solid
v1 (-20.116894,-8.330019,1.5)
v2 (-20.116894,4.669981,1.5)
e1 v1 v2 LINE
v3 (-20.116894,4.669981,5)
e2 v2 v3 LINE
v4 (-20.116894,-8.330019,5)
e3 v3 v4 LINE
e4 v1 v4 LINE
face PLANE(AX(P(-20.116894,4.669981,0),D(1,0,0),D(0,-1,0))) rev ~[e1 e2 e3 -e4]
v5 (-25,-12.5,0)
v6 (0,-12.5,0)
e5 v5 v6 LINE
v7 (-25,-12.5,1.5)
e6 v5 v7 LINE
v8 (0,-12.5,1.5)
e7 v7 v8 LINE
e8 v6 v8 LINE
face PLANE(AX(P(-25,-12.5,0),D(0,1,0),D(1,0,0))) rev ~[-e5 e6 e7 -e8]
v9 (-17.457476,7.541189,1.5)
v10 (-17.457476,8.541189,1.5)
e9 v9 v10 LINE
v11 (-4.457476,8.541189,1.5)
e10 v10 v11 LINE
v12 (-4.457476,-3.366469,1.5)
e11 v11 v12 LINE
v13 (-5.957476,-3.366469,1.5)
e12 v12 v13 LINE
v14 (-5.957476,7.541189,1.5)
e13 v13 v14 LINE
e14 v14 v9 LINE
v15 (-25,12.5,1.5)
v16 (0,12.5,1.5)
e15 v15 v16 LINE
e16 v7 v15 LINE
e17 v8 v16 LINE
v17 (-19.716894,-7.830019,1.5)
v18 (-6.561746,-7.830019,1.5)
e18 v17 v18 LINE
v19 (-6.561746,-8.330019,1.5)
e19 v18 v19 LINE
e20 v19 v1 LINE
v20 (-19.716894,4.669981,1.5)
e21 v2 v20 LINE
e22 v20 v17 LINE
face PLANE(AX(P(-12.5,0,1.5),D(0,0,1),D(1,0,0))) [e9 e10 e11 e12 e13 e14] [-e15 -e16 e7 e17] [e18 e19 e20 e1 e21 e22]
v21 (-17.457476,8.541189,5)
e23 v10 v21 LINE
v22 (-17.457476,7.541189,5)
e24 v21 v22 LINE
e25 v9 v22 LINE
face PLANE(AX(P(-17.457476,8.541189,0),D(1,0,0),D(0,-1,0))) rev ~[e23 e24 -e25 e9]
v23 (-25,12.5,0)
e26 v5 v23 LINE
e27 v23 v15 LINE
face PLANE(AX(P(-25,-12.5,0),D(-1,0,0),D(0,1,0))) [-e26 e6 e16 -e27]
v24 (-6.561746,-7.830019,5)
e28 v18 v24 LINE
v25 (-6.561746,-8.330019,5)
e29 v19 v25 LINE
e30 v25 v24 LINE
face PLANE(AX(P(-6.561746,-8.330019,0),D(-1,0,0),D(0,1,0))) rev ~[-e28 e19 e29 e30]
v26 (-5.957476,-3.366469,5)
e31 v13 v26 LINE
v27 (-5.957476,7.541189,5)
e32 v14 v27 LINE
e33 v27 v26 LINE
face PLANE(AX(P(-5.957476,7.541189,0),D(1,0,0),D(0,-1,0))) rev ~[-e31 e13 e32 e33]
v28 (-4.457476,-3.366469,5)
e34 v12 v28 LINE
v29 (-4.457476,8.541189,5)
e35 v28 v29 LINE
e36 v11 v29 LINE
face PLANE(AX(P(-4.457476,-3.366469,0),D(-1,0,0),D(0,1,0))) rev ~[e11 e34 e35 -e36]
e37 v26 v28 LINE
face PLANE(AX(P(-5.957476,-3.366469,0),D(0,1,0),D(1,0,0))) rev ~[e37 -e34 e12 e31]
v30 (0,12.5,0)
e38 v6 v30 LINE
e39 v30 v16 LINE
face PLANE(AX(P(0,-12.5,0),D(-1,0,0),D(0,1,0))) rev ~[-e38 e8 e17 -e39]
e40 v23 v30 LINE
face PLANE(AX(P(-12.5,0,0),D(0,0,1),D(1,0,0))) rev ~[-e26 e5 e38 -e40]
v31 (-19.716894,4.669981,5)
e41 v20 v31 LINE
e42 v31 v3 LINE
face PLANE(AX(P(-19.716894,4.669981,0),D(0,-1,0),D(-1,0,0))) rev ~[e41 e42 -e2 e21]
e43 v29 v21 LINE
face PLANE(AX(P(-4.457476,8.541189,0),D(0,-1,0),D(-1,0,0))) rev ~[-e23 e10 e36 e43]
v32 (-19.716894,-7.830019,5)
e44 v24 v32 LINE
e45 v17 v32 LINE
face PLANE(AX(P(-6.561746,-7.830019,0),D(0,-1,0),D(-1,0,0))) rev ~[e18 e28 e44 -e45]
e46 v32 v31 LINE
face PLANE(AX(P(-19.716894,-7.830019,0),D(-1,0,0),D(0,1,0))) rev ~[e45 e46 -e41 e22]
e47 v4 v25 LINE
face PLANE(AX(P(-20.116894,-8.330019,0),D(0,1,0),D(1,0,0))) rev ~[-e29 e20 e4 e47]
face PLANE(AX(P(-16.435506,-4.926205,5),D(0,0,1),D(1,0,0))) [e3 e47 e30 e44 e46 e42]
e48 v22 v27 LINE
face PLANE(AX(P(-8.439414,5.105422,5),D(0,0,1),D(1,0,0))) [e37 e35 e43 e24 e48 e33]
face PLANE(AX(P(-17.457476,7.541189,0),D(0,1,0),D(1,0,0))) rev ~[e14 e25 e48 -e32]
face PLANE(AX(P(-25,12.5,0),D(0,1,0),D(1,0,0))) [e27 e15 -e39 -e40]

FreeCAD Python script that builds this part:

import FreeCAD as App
import Part
import Sketcher
Q = App.Units.Quantity


def add_polygon(sketch, points):
    """Adds a closed chain of lines whose ends are joined by coincident constraints."""
    first, n = sketch.GeometryCount, len(points)
    for a, b in zip(points, points[1:] + points[:1]):
        sketch.addGeometry(Part.LineSegment(App.Vector(*a, 0), App.Vector(*b, 0)), False)
    for i in range(n):
        sketch.addConstraint(Sketcher.Constraint("Coincident", first + i, 2, first + (i + 1) % n, 1))

doc = App.newDocument("Part")
body = doc.addObject("PartDesign::Body", "Body")

# Sketch on XY plane
sketch1 = body.newObject("Sketcher::SketchObject", "Sketch")
sketch1.AttachmentSupport = (doc.getObject("XY_Plane"), [""])
sketch1.MapMode = "FlatFace"
add_polygon(sketch1, [(-4.457476, 8.541189), (-17.457476, 8.541189), (-17.457476, 7.541189), (-5.957476, 7.541189), (-5.957476, -3.366469), (-4.457476, -3.366469)])  # lines 0-5
sketch1.addConstraint([
    Sketcher.Constraint("Horizontal", 0),
    Sketcher.Constraint("Vertical", 1),
    Sketcher.Constraint("Horizontal", 2),
    Sketcher.Constraint("Vertical", 3),
    Sketcher.Constraint("Horizontal", 4),
    Sketcher.Constraint("Vertical", 5),
    Sketcher.Constraint("DistanceX", 0, 2, 0, 1, Q("13 mm")),
    Sketcher.Constraint("DistanceY", 1, 2, 1, 1, Q("1 mm")),
    Sketcher.Constraint("DistanceX", 2, 1, 2, 2, Q("11.5 mm")),
    Sketcher.Constraint("DistanceY", 3, 2, 3, 1, Q("10.907658 mm")),
    Sketcher.Constraint("DistanceY", -1, 1, 0, 2, Q("8.541189 mm")),
    Sketcher.Constraint("DistanceX", 0, 2, -1, 1, Q("17.457476 mm")),
])
pad1 = body.newObject("PartDesign::Pad", "Pad")
pad1.Profile = sketch1
pad1.Length = 5

# Sketch on XY plane
sketch2 = body.newObject("Sketcher::SketchObject", "Sketch001")
sketch2.AttachmentSupport = (doc.getObject("XY_Plane"), [""])
sketch2.MapMode = "FlatFace"
add_polygon(sketch2, [(-25, 12.5), (-25, -12.5), (0, -12.5), (0, 12.5)])  # lines 0-3
add_polygon(sketch2, [(-20.116894, -8.330019), (-20.116894, 4.669981), (-19.716894, 4.669981), (-19.716894, -7.830019), (-6.561746, -7.830019), (-6.561746, -8.330019)])  # lines 4-9
add_polygon(sketch2, [(-5.957476, 7.541189), (-17.457476, 7.541189), (-17.457476, 8.541189), (-4.457476, 8.541189), (-4.457476, -3.366469), (-5.957476, -3.366469)])  # lines 10-15
sketch2.addConstraint([
    Sketcher.Constraint("Vertical", 0),
    Sketcher.Constraint("Horizontal", 1),
    Sketcher.Constraint("Vertical", 2),
    Sketcher.Constraint("Horizontal", 3),
    Sketcher.Constraint("Vertical", 4),
    Sketcher.Constraint("Horizontal", 5),
    Sketcher.Constraint("Vertical", 6),
    Sketcher.Constraint("Horizontal", 7),
    Sketcher.Constraint("Vertical", 8),
    Sketcher.Constraint("Horizontal", 9),
    Sketcher.Constraint("Horizontal", 10),
    Sketcher.Constraint("Vertical", 11),
    Sketcher.Constraint("Horizontal", 12),
    Sketcher.Constraint("Vertical", 13),
    Sketcher.Constraint("Horizontal", 14),
    Sketcher.Constraint("Vertical", 15),
    Sketcher.Constraint("Symmetric", 1, 2, 2, 2, -1, 1),
    Sketcher.Constraint("Equal", 3, 0),
    Sketcher.Constraint("Equal", 12, 4),
    Sketcher.Constraint("DistanceX", 1, 1, 1, 2, Q("25 mm")),
    Sketcher.Constraint("DistanceX", 12, 1, 12, 2, Q("13 mm")),
    Sketcher.Constraint("DistanceY", 11, 1, 11, 2, Q("1 mm")),
    Sketcher.Constraint("DistanceX", 5, 1, 5, 2, Q("0.4 mm")),
    Sketcher.Constraint("DistanceX", 10, 2, 10, 1, Q("11.5 mm")),
    Sketcher.Constraint("DistanceY", 6, 2, 6, 1, Q("12.5 mm")),
    Sketcher.Constraint("DistanceX", 7, 1, 7, 2, Q("13.155148 mm")),
    Sketcher.Constraint("DistanceY", 13, 2, 13, 1, Q("11.907658 mm")),
    Sketcher.Constraint("DistanceY", -1, 1, 4, 2, Q("4.669981 mm")),
    Sketcher.Constraint("DistanceY", -1, 1, 10, 2, Q("7.541189 mm")),
    Sketcher.Constraint("DistanceX", 5, 2, 10, 2, Q("2.259418 mm")),
    Sketcher.Constraint("DistanceX", 4, 2, -1, 1, Q("20.116894 mm")),
])
pad2 = body.newObject("PartDesign::Pad", "Pad001")
pad2.Profile = sketch2
pad2.Length = 1.5

# Sketch on XY plane
sketch3 = body.newObject("Sketcher::SketchObject", "Sketch002")
sketch3.AttachmentSupport = (doc.getObject("XY_Plane"), [""])
sketch3.MapMode = "FlatFace"
add_polygon(sketch3, [(-19.716894, -7.830019), (-19.716894, 4.669981), (-20.116894, 4.669981), (-20.116894, -8.330019), (-6.561746, -8.330019), (-6.561746, -7.830019)])  # lines 0-5
sketch3.addConstraint([
    Sketcher.Constraint("Vertical", 0),
    Sketcher.Constraint("Horizontal", 1),
    Sketcher.Constraint("Vertical", 2),
    Sketcher.Constraint("Horizontal", 3),
    Sketcher.Constraint("Vertical", 4),
    Sketcher.Constraint("Horizontal", 5),
    Sketcher.Constraint("DistanceY", 2, 2, 2, 1, Q("13 mm")),
    Sketcher.Constraint("DistanceX", 1, 2, 1, 1, Q("0.4 mm")),
    Sketcher.Constraint("DistanceY", 0, 1, 0, 2, Q("12.5 mm")),
    Sketcher.Constraint("DistanceX", 3, 1, 3, 2, Q("13.555148 mm")),
    Sketcher.Constraint("DistanceY", -1, 1, 0, 2, Q("4.669981 mm")),
    Sketcher.Constraint("DistanceX", 0, 2, -1, 1, Q("19.716894 mm")),
])
pad3 = body.newObject("PartDesign::Pad", "Pad002")
pad3.Profile = sketch3
pad3.Length = 5

doc.recompute()
